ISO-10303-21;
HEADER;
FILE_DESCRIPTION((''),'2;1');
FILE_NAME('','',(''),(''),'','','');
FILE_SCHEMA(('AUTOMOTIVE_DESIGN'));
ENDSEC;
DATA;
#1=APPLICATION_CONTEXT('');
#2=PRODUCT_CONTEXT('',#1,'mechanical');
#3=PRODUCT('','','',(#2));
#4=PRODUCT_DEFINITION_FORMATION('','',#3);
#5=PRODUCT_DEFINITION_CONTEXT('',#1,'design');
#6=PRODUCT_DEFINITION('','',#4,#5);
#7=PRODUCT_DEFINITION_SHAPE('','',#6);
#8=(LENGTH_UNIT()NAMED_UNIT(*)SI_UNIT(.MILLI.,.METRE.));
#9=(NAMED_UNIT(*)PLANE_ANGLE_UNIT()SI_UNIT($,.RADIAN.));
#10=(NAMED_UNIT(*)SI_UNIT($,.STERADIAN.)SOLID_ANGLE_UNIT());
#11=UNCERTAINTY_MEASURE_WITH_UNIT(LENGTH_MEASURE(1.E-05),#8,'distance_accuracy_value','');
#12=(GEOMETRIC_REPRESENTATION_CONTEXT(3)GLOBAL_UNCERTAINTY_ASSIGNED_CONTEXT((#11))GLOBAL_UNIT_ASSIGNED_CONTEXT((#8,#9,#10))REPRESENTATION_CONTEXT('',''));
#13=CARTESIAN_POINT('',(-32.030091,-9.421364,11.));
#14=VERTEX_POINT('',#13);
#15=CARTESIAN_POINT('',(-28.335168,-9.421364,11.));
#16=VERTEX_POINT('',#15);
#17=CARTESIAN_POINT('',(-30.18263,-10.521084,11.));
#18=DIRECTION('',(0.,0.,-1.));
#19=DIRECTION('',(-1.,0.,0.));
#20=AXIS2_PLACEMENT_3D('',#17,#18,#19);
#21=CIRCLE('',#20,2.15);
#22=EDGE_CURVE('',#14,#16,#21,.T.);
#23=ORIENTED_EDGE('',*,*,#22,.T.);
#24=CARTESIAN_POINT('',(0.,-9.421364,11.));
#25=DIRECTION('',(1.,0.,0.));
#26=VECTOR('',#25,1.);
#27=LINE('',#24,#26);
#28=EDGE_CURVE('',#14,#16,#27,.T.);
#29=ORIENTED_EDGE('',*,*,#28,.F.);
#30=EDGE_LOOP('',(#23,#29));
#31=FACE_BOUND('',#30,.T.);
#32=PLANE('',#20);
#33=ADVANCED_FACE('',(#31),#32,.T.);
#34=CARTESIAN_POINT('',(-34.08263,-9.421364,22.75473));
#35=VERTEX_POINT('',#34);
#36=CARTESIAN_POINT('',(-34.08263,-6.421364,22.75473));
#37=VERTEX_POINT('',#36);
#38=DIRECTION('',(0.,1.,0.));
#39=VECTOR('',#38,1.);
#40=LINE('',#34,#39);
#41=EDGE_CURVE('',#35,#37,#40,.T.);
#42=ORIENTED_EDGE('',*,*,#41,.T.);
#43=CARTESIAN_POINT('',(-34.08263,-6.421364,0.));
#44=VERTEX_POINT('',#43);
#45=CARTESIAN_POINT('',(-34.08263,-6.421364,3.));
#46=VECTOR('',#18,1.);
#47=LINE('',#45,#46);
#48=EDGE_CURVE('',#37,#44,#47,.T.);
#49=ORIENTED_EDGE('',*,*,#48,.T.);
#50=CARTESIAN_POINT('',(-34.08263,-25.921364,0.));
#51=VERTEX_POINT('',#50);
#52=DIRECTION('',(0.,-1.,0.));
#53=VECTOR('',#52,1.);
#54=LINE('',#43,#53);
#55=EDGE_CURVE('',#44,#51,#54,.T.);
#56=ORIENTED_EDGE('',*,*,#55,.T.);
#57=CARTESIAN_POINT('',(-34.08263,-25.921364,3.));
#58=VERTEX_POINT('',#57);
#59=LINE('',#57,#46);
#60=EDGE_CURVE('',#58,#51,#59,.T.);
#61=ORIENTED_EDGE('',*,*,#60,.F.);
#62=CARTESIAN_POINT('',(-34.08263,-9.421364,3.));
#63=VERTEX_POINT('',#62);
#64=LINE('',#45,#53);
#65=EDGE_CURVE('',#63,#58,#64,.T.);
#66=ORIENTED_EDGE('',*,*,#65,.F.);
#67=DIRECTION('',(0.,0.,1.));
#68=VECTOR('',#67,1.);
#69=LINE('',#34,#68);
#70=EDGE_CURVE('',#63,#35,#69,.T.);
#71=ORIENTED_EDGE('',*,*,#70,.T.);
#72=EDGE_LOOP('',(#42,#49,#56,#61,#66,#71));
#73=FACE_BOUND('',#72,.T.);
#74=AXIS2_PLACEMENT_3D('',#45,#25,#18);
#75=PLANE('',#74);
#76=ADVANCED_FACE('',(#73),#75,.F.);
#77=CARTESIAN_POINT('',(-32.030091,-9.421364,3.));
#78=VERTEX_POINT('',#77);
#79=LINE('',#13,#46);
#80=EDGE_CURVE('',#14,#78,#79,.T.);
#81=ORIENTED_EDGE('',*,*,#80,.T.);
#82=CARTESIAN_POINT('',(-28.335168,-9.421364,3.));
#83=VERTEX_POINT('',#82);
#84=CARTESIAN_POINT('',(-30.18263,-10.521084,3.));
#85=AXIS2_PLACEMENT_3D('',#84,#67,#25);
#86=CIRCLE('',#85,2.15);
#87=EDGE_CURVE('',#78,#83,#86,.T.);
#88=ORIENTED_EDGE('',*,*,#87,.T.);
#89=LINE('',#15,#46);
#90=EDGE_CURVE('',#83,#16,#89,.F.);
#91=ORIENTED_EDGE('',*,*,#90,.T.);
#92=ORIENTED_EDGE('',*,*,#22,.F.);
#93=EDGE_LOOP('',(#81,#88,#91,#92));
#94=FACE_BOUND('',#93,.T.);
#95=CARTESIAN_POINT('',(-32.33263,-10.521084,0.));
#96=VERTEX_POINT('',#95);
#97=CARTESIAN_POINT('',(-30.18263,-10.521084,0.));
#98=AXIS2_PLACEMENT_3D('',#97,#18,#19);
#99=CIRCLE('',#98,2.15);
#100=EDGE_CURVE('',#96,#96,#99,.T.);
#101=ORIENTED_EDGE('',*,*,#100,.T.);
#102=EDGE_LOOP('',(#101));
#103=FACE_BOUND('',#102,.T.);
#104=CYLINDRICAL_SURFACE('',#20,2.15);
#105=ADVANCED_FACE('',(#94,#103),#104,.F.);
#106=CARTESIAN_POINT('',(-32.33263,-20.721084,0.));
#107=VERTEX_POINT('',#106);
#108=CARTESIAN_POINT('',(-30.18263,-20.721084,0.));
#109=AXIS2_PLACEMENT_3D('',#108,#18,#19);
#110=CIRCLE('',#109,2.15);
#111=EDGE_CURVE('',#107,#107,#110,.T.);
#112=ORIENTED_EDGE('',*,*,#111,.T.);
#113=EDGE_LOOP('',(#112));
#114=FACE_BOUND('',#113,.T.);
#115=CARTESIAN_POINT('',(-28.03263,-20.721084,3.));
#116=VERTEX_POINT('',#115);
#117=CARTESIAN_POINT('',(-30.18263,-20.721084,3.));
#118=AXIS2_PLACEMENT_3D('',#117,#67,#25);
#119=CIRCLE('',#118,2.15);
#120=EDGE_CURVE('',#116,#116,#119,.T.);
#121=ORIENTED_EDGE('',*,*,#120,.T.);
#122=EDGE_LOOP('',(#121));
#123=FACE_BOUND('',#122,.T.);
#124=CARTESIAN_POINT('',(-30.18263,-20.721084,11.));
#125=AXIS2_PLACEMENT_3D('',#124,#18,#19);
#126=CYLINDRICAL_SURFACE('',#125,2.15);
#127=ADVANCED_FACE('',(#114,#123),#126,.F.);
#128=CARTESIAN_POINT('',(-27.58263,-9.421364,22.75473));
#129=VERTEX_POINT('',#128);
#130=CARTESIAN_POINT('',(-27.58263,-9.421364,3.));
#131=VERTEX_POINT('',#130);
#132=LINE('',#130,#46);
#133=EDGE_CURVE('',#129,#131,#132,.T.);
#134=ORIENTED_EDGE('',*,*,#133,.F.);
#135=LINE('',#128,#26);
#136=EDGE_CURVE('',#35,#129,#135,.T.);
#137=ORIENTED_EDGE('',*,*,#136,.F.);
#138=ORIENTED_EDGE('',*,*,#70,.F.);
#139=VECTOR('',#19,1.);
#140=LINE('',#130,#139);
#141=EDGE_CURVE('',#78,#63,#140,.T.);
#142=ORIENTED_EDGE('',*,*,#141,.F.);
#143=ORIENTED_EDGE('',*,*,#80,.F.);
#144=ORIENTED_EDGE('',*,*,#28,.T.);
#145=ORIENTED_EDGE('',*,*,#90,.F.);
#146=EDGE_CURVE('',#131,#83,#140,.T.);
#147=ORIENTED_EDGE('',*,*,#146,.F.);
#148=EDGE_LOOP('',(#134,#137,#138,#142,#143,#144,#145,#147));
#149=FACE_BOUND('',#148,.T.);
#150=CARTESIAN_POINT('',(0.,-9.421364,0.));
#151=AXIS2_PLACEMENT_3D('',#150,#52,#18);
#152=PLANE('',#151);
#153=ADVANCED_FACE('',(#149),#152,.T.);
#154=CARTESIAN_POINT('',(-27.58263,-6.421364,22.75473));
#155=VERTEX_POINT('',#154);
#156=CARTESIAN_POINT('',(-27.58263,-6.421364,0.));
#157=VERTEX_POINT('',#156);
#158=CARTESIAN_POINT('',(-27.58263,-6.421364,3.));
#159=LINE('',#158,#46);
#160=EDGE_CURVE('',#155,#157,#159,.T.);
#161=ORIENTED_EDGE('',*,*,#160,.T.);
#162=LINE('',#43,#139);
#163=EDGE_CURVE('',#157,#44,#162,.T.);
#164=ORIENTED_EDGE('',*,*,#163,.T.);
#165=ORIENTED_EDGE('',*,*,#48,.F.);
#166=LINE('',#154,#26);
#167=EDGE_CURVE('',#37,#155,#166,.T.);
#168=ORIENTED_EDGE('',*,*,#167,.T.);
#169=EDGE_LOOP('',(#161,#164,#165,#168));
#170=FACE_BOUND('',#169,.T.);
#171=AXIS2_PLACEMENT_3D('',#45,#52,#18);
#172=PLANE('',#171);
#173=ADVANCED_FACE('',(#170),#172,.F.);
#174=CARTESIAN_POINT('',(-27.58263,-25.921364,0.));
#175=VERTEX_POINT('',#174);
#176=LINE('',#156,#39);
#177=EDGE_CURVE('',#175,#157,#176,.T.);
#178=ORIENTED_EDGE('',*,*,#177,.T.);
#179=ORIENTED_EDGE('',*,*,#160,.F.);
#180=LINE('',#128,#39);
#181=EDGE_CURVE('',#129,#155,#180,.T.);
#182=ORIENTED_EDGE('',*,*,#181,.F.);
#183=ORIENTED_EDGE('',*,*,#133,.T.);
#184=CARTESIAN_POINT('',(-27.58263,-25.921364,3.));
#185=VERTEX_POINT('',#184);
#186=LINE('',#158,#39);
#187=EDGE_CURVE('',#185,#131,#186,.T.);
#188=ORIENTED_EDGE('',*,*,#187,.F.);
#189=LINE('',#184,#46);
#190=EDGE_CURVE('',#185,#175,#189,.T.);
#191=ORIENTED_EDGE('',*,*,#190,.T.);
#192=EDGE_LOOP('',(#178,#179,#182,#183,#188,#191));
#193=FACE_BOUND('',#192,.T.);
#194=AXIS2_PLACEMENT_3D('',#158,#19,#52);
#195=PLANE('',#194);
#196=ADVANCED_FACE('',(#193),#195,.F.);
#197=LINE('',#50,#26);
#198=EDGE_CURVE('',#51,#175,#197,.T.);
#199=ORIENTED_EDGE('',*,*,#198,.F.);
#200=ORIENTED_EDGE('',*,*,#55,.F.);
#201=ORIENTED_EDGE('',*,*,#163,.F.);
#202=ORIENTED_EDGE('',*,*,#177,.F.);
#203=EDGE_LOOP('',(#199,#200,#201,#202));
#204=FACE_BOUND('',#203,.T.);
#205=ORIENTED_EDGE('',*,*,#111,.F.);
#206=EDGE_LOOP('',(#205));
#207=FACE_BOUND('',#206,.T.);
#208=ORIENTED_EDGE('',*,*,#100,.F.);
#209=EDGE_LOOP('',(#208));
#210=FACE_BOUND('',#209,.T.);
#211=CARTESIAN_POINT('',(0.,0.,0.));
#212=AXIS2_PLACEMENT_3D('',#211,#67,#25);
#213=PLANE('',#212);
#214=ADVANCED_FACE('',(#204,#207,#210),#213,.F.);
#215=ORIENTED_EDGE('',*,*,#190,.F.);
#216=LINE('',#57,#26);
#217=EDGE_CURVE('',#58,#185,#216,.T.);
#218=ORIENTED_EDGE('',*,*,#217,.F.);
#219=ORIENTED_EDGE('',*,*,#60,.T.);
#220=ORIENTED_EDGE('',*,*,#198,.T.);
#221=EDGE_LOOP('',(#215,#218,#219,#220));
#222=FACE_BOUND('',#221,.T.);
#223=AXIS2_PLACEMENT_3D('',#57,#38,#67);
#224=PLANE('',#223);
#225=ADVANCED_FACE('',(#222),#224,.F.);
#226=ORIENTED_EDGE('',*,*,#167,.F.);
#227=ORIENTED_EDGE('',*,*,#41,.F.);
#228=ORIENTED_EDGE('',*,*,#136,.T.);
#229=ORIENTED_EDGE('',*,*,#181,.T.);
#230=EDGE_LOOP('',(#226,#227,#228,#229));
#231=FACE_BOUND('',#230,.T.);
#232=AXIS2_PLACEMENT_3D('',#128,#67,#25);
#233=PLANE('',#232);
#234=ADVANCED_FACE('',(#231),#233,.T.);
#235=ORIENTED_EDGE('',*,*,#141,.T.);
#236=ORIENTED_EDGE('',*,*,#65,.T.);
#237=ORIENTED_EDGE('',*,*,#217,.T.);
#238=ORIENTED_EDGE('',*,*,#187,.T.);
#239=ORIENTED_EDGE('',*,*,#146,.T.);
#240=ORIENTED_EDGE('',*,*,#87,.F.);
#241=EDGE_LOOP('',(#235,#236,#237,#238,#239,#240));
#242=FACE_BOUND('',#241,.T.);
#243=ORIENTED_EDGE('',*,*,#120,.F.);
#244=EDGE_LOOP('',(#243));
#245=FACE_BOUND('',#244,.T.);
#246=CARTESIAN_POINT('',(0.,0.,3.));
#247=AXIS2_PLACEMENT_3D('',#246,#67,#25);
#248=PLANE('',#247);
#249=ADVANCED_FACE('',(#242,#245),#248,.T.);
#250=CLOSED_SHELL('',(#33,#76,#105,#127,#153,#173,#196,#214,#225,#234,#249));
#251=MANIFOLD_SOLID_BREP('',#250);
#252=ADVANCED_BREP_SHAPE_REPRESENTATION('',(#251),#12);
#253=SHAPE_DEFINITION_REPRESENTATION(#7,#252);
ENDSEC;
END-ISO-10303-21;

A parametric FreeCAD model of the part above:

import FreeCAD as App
import Part
import Sketcher
from FreeCAD import Vector

doc = App.newDocument("Part")
params = doc.addObject("Spreadsheet::Sheet", "Params")
for row, (alias, value) in enumerate([
    ("sketch1_width", "6.5 mm"),
    ("sketch1_height", "19.5 mm"),
    ("pad1_length", "3 mm"),
    ("sketch2_width", "6.5 mm"),
    ("pad2_length", "3 mm"),
    ("sketch3_diameter", "4.3 mm"),
    ("pocket1_length", "11 mm"),
], start=1):
    params.set(f"A{row}", alias)
    params.set(f"B{row}", "=" + value)
    params.setAlias(f"B{row}", alias)

body = doc.addObject("PartDesign::Body", "Body")

# Sketch on XY plane
sketch1 = doc.addObject("Sketcher::SketchObject", "Sketch")
body.addObject(sketch1)
sketch1.AttachmentSupport = (doc.XY_Plane, [""])
sketch1.MapMode = "FlatFace"
sketch1.addGeometry(Part.LineSegment(Vector(-34, -6, 0), Vector(-34, -26, 0)), False)
sketch1.addGeometry(Part.LineSegment(Vector(-34, -26, 0), Vector(-28, -26, 0)), False)
sketch1.addGeometry(Part.LineSegment(Vector(-28, -26, 0), Vector(-28, -6, 0)), False)
sketch1.addGeometry(Part.LineSegment(Vector(-28, -6, 0), Vector(-34, -6, 0)), False)
sketch1.addConstraint(Sketcher.Constraint("Coincident", 0, 2, 1, 1))
sketch1.addConstraint(Sketcher.Constraint("Coincident", 1, 2, 2, 1))
sketch1.addConstraint(Sketcher.Constraint("Coincident", 2, 2, 3, 1))
sketch1.addConstraint(Sketcher.Constraint("Coincident", 3, 2, 0, 1))
sketch1.addConstraint(Sketcher.Constraint("Vertical", 0))
sketch1.addConstraint(Sketcher.Constraint("Horizontal", 1))
sketch1.addConstraint(Sketcher.Constraint("Vertical", 2))
sketch1.addConstraint(Sketcher.Constraint("Horizontal", 3))
sketch1.addConstraint(Sketcher.Constraint("DistanceX", 1, 1, 1, 2, 6.5))
sketch1.addConstraint(Sketcher.Constraint("DistanceY", 0, 2, 0, 1, 19.5))
sketch1.addConstraint(Sketcher.Constraint("DistanceX", 0, 2, -1, 1, 34.08263))
sketch1.addConstraint(Sketcher.Constraint("DistanceY", 0, 2, -1, 1, 25.921364))
sketch1.setExpression("Constraints[8]", "Params.sketch1_width")
sketch1.setExpression("Constraints[9]", "Params.sketch1_height")
pad1 = doc.addObject("PartDesign::Pad", "Pad")
body.addObject(pad1)
pad1.Profile = sketch1
pad1.setExpression("Length", "Params.pad1_length")

# Sketch on XZ plane
sketch2 = doc.addObject("Sketcher::SketchObject", "Sketch001")
body.addObject(sketch2)
sketch2.AttachmentSupport = (doc.XZ_Plane, [""])
sketch2.MapMode = "FlatFace"
sketch2.AttachmentOffset = App.Placement(Vector(0, 0, 6.421364), App.Rotation())
sketch2.addGeometry(Part.LineSegment(Vector(-34, 3, 0), Vector(-34, 23, 0)), False)
sketch2.addGeometry(Part.LineSegment(Vector(-34, 23, 0), Vector(-28, 23, 0)), False)
sketch2.addGeometry(Part.LineSegment(Vector(-28, 23, 0), Vector(-28, 3, 0)), False)
sketch2.addGeometry(Part.LineSegment(Vector(-28, 3, 0), Vector(-34, 3, 0)), False)
sketch2.addConstraint(Sketcher.Constraint("Coincident", 0, 2, 1, 1))
sketch2.addConstraint(Sketcher.Constraint("Coincident", 1, 2, 2, 1))
sketch2.addConstraint(Sketcher.Constraint("Coincident", 2, 2, 3, 1))
sketch2.addConstraint(Sketcher.Constraint("Coincident", 3, 2, 0, 1))
sketch2.addConstraint(Sketcher.Constraint("Vertical", 0))
sketch2.addConstraint(Sketcher.Constraint("Horizontal", 1))
sketch2.addConstraint(Sketcher.Constraint("Vertical", 2))
sketch2.addConstraint(Sketcher.Constraint("Horizontal", 3))
sketch2.addConstraint(Sketcher.Constraint("DistanceX", 1, 1, 1, 2, 6.5))
sketch2.addConstraint(Sketcher.Constraint("DistanceY", -1, 1, 2, 2, 3.0))
sketch2.addConstraint(Sketcher.Constraint("DistanceY", 0, 1, 0, 2, 19.75473))
sketch2.addConstraint(Sketcher.Constraint("DistanceX", 0, 2, -1, 1, 34.08263))
sketch2.setExpression("Constraints[8]", "Params.sketch2_width")
pad2 = doc.addObject("PartDesign::Pad", "Pad001")
body.addObject(pad2)
pad2.Profile = sketch2
pad2.setExpression("Length", "Params.pad2_length")

# Sketch on XY plane
sketch3 = doc.addObject("Sketcher::SketchObject", "Sketch002")
body.addObject(sketch3)
sketch3.AttachmentSupport = (doc.XY_Plane, [""])
sketch3.MapMode = "FlatFace"
sketch3.addGeometry(Part.Circle(Vector(-30.2, -10.5, 0), Vector(0, 0, 1), 2.1), False)
sketch3.addGeometry(Part.Circle(Vector(-30.2, -20.7, 0), Vector(0, 0, 1), 2.1), False)
sketch3.addConstraint(Sketcher.Constraint("Equal", 0, 1))
sketch3.addConstraint(Sketcher.Constraint("Vertical", 0, 3, 1, 3))
sketch3.addConstraint(Sketcher.Constraint("Diameter", 0, 4.3))
sketch3.addConstraint(Sketcher.Constraint("DistanceY", 1, 3, 0, 3, 10.2))
sketch3.addConstraint(Sketcher.Constraint("DistanceX", 0, 3, -1, 1, 30.18263))
sketch3.addConstraint(Sketcher.Constraint("DistanceY", 0, 3, -1, 1, 10.521084))
sketch3.setExpression("Constraints[2]", "Params.sketch3_diameter")
pocket1 = doc.addObject("PartDesign::Pocket", "Pocket")
body.addObject(pocket1)
pocket1.Profile = sketch3
pocket1.setExpression("Length", "Params.pocket1_length")
pocket1.Reversed = True

doc.recompute()
